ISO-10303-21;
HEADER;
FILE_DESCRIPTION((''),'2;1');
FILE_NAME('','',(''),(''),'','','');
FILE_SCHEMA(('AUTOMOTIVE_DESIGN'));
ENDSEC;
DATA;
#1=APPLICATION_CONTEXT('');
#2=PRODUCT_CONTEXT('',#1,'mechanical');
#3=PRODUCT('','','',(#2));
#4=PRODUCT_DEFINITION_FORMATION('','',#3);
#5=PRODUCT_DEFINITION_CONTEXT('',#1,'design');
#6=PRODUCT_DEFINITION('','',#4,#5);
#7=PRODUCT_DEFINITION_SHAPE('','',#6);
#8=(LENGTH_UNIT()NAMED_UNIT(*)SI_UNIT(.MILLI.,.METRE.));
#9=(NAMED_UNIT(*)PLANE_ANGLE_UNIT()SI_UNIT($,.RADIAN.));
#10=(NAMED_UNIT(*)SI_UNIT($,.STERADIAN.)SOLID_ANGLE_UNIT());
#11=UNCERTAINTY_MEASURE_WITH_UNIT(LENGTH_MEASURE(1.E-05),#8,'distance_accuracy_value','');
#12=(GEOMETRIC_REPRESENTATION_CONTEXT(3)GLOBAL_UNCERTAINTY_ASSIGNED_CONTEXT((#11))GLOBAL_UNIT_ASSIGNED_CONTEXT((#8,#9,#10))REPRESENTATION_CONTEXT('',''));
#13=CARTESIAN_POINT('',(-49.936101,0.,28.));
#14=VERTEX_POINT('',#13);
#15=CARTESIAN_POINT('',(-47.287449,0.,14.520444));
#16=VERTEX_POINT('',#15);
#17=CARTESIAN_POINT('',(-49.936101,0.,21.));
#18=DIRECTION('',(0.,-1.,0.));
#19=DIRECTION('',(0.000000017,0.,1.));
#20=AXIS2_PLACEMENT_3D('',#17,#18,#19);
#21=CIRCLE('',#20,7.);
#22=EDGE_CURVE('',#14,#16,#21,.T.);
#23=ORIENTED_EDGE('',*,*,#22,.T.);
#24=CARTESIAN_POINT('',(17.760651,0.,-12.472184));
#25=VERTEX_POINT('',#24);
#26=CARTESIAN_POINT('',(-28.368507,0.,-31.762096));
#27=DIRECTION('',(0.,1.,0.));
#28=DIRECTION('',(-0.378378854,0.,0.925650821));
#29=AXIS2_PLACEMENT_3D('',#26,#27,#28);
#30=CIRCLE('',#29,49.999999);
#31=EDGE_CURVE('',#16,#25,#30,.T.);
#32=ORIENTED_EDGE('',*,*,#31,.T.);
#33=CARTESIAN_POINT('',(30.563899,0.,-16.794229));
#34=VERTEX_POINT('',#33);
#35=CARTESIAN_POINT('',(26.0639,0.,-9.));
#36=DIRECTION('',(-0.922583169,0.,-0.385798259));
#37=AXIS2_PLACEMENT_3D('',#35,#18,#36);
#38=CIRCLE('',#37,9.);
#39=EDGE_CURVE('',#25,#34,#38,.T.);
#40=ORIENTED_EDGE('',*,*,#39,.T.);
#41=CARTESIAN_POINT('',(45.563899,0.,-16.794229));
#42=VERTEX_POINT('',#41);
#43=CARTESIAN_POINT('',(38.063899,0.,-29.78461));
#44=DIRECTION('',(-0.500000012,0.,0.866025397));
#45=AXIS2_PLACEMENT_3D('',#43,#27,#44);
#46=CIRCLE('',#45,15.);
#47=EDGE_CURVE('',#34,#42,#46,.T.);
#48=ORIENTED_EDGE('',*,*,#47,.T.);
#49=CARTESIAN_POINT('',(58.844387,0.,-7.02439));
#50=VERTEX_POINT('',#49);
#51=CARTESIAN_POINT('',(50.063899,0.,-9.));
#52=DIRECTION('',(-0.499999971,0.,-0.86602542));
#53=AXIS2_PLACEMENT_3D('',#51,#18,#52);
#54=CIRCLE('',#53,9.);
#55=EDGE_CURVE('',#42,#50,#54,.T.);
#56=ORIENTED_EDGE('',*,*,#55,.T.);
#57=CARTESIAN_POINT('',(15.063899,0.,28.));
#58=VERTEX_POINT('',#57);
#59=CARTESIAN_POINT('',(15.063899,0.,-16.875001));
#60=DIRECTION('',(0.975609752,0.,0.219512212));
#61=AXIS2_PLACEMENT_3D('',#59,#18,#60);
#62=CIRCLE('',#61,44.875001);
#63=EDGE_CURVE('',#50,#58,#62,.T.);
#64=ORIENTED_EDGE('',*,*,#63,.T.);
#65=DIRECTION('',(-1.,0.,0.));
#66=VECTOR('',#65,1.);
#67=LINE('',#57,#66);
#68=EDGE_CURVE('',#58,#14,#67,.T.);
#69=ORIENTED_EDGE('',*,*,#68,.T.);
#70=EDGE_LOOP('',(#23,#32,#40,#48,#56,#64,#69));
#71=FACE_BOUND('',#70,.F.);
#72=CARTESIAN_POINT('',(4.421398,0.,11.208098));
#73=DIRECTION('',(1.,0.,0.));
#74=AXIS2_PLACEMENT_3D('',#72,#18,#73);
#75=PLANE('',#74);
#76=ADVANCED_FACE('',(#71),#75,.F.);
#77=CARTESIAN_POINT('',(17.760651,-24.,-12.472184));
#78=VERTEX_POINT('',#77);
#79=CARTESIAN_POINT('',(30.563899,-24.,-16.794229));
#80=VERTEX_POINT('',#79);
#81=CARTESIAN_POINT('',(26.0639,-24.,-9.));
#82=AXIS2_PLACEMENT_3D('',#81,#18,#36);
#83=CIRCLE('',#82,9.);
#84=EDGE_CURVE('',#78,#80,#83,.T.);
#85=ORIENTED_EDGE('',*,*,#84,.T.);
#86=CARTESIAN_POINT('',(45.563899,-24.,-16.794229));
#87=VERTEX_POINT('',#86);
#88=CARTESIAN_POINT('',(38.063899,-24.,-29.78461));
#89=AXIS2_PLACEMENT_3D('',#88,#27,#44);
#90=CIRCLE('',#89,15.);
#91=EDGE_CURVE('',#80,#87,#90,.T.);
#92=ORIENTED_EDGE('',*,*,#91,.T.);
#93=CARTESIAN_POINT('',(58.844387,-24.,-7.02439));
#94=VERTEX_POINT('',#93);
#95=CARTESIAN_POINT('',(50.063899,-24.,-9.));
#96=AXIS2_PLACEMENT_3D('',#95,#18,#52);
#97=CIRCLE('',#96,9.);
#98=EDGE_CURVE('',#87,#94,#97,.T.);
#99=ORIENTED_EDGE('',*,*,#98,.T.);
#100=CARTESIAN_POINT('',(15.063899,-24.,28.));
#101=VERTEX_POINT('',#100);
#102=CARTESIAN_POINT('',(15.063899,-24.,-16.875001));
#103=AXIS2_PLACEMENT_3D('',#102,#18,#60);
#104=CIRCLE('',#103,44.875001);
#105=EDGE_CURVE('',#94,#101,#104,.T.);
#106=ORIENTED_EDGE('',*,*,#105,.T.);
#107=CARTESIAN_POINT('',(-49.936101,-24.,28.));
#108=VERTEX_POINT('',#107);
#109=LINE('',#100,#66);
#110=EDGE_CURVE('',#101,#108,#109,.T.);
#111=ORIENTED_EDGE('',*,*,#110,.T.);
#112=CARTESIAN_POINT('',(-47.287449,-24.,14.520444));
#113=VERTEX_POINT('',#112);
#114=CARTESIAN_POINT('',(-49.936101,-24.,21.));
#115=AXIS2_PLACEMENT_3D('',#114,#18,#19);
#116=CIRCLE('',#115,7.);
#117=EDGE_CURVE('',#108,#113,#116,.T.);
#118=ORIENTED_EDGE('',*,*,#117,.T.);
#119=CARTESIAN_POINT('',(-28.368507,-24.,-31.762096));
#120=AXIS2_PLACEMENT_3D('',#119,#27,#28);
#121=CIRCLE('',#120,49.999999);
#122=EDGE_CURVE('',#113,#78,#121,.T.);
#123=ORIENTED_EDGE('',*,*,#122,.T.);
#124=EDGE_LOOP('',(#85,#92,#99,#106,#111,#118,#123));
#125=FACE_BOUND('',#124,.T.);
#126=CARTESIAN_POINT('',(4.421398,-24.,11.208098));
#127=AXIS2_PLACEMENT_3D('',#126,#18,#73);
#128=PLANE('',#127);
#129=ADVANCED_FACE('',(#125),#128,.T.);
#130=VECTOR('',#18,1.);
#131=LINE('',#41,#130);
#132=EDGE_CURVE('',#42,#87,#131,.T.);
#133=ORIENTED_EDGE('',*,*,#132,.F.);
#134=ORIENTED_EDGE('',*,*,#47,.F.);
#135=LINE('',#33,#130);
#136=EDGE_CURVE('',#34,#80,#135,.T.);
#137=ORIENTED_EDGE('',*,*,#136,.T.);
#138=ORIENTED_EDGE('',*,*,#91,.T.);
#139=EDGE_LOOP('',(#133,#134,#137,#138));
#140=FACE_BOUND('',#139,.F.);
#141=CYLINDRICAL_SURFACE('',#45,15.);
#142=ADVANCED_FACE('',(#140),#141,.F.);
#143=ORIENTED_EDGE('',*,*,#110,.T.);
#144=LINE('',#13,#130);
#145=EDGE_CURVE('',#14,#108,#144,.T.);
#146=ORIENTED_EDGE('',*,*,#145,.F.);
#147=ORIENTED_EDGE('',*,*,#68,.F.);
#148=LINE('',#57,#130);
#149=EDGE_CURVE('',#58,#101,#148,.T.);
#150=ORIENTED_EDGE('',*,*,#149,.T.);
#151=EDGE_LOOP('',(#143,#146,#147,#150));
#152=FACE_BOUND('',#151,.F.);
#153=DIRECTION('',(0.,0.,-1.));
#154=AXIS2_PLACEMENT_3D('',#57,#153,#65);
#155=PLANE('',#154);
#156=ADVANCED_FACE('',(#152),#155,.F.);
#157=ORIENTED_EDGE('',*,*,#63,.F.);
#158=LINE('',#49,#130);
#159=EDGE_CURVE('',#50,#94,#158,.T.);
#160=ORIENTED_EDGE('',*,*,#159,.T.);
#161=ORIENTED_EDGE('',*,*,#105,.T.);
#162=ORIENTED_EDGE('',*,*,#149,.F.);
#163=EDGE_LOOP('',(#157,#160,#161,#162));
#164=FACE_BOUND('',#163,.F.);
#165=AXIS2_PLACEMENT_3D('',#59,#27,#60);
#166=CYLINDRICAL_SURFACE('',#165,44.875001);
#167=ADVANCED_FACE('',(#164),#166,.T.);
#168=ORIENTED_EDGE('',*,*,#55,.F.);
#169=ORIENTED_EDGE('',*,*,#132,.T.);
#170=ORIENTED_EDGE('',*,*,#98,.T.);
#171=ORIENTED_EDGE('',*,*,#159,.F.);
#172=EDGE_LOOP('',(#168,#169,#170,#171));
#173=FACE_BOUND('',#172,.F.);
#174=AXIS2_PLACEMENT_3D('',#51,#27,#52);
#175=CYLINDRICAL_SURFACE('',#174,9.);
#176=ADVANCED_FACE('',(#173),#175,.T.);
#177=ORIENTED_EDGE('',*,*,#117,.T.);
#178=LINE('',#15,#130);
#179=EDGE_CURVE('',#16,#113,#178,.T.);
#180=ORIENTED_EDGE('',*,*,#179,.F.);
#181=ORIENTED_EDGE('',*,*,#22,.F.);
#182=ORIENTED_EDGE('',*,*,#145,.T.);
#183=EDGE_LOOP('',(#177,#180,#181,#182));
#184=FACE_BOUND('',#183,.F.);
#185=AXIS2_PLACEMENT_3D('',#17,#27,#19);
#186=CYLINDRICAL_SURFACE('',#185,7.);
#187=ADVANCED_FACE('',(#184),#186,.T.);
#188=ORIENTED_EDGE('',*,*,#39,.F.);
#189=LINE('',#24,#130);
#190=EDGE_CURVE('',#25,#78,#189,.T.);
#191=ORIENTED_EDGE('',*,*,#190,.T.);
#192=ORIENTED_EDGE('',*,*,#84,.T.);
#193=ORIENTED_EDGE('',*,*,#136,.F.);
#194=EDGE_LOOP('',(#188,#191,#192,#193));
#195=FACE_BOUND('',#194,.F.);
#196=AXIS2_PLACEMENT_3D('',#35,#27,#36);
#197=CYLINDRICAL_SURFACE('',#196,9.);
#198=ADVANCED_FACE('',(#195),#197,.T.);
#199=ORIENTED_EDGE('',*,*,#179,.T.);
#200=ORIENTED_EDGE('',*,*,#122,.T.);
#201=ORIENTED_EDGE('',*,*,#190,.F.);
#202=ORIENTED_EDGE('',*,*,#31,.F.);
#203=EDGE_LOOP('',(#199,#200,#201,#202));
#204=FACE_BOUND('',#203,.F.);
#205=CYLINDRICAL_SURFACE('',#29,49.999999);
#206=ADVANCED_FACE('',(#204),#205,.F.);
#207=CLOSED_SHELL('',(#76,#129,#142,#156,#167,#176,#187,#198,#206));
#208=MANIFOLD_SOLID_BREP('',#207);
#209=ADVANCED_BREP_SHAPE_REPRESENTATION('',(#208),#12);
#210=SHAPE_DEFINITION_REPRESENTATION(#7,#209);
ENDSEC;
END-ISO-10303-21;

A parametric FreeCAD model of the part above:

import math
import FreeCAD as App
import Part
import Sketcher
from FreeCAD import Vector
Q = App.Units.Quantity

doc = App.newDocument("Part")
body = doc.addObject("PartDesign::Body", "Body")

sketch1 = body.newObject("Sketcher::SketchObject", "Sketch")
sketch1.AttachmentSupport = (doc.getObject("XZ_Plane"), [""])
sketch1.MapMode = "FlatFace"
sketch1.addGeometry([
    Part.LineSegment(Vector(15, 28, 0), Vector(-50, 28, 0)),
    Part.ArcOfCircle(Part.Circle(Vector(-50, 21, 0), Vector(0, 0, 1), 7), math.radians(90), math.radians(292)),
    Part.ArcOfCircle(Part.Circle(Vector(-28, -32, 0), Vector(0, 0, 1), 50), math.radians(23), math.radians(112)),
    Part.ArcOfCircle(Part.Circle(Vector(26, -9, 0), Vector(0, 0, 1), 9), math.radians(-157), math.radians(-60)),
    Part.ArcOfCircle(Part.Circle(Vector(38, -30, 0), Vector(0, 0, 1), 15), math.radians(60), math.radians(120)),
    Part.ArcOfCircle(Part.Circle(Vector(50, -9, 0), Vector(0, 0, 1), 9), math.radians(-120), math.radians(13)),
    Part.ArcOfCircle(Part.Circle(Vector(15, -17, 0), Vector(0, 0, 1), 45), math.radians(13), math.radians(90)),
], False)
sketch1.addConstraint([
    Sketcher.Constraint("Tangent", 0, 2, 1, 1),
    Sketcher.Constraint("Tangent", 1, 2, 2, 2),
    Sketcher.Constraint("Tangent", 2, 1, 3, 1),
    Sketcher.Constraint("Tangent", 3, 2, 4, 2),
    Sketcher.Constraint("Tangent", 4, 1, 5, 1),
    Sketcher.Constraint("Tangent", 5, 2, 6, 1),
    Sketcher.Constraint("Tangent", 6, 2, 0, 1),
    Sketcher.Constraint("Horizontal", 0),
    Sketcher.Constraint("Equal", 3, 5),
    Sketcher.Constraint("Horizontal", 3, 3, 5, 3),
    Sketcher.Constraint("Radius", 1, Q("7 mm")),
    Sketcher.Constraint("Radius", 2, Q("49.999999 mm")),
    Sketcher.Constraint("Radius", 3, Q("9 mm")),
    Sketcher.Constraint("Radius", 4, Q("15 mm")),
    Sketcher.Constraint("DistanceX", 0, 2, 0, 1, Q("65 mm")),
    Sketcher.Constraint("DistanceY", -1, 1, 1, 3, Q("21 mm")),
    Sketcher.Constraint("DistanceY", 3, 3, -1, 1, Q("9 mm")),
    Sketcher.Constraint("Radius", 6, Q("44.875001 mm")),
    Sketcher.Constraint("DistanceX", 1, 3, 3, 3, Q("76.000001 mm")),
    Sketcher.Constraint("DistanceX", 1, 3, -1, 1, Q("49.936101 mm")),
])
pad1 = body.newObject("PartDesign::Pad", "Pad")
pad1.Profile = sketch1
pad1.Length = 24

doc.recompute()
